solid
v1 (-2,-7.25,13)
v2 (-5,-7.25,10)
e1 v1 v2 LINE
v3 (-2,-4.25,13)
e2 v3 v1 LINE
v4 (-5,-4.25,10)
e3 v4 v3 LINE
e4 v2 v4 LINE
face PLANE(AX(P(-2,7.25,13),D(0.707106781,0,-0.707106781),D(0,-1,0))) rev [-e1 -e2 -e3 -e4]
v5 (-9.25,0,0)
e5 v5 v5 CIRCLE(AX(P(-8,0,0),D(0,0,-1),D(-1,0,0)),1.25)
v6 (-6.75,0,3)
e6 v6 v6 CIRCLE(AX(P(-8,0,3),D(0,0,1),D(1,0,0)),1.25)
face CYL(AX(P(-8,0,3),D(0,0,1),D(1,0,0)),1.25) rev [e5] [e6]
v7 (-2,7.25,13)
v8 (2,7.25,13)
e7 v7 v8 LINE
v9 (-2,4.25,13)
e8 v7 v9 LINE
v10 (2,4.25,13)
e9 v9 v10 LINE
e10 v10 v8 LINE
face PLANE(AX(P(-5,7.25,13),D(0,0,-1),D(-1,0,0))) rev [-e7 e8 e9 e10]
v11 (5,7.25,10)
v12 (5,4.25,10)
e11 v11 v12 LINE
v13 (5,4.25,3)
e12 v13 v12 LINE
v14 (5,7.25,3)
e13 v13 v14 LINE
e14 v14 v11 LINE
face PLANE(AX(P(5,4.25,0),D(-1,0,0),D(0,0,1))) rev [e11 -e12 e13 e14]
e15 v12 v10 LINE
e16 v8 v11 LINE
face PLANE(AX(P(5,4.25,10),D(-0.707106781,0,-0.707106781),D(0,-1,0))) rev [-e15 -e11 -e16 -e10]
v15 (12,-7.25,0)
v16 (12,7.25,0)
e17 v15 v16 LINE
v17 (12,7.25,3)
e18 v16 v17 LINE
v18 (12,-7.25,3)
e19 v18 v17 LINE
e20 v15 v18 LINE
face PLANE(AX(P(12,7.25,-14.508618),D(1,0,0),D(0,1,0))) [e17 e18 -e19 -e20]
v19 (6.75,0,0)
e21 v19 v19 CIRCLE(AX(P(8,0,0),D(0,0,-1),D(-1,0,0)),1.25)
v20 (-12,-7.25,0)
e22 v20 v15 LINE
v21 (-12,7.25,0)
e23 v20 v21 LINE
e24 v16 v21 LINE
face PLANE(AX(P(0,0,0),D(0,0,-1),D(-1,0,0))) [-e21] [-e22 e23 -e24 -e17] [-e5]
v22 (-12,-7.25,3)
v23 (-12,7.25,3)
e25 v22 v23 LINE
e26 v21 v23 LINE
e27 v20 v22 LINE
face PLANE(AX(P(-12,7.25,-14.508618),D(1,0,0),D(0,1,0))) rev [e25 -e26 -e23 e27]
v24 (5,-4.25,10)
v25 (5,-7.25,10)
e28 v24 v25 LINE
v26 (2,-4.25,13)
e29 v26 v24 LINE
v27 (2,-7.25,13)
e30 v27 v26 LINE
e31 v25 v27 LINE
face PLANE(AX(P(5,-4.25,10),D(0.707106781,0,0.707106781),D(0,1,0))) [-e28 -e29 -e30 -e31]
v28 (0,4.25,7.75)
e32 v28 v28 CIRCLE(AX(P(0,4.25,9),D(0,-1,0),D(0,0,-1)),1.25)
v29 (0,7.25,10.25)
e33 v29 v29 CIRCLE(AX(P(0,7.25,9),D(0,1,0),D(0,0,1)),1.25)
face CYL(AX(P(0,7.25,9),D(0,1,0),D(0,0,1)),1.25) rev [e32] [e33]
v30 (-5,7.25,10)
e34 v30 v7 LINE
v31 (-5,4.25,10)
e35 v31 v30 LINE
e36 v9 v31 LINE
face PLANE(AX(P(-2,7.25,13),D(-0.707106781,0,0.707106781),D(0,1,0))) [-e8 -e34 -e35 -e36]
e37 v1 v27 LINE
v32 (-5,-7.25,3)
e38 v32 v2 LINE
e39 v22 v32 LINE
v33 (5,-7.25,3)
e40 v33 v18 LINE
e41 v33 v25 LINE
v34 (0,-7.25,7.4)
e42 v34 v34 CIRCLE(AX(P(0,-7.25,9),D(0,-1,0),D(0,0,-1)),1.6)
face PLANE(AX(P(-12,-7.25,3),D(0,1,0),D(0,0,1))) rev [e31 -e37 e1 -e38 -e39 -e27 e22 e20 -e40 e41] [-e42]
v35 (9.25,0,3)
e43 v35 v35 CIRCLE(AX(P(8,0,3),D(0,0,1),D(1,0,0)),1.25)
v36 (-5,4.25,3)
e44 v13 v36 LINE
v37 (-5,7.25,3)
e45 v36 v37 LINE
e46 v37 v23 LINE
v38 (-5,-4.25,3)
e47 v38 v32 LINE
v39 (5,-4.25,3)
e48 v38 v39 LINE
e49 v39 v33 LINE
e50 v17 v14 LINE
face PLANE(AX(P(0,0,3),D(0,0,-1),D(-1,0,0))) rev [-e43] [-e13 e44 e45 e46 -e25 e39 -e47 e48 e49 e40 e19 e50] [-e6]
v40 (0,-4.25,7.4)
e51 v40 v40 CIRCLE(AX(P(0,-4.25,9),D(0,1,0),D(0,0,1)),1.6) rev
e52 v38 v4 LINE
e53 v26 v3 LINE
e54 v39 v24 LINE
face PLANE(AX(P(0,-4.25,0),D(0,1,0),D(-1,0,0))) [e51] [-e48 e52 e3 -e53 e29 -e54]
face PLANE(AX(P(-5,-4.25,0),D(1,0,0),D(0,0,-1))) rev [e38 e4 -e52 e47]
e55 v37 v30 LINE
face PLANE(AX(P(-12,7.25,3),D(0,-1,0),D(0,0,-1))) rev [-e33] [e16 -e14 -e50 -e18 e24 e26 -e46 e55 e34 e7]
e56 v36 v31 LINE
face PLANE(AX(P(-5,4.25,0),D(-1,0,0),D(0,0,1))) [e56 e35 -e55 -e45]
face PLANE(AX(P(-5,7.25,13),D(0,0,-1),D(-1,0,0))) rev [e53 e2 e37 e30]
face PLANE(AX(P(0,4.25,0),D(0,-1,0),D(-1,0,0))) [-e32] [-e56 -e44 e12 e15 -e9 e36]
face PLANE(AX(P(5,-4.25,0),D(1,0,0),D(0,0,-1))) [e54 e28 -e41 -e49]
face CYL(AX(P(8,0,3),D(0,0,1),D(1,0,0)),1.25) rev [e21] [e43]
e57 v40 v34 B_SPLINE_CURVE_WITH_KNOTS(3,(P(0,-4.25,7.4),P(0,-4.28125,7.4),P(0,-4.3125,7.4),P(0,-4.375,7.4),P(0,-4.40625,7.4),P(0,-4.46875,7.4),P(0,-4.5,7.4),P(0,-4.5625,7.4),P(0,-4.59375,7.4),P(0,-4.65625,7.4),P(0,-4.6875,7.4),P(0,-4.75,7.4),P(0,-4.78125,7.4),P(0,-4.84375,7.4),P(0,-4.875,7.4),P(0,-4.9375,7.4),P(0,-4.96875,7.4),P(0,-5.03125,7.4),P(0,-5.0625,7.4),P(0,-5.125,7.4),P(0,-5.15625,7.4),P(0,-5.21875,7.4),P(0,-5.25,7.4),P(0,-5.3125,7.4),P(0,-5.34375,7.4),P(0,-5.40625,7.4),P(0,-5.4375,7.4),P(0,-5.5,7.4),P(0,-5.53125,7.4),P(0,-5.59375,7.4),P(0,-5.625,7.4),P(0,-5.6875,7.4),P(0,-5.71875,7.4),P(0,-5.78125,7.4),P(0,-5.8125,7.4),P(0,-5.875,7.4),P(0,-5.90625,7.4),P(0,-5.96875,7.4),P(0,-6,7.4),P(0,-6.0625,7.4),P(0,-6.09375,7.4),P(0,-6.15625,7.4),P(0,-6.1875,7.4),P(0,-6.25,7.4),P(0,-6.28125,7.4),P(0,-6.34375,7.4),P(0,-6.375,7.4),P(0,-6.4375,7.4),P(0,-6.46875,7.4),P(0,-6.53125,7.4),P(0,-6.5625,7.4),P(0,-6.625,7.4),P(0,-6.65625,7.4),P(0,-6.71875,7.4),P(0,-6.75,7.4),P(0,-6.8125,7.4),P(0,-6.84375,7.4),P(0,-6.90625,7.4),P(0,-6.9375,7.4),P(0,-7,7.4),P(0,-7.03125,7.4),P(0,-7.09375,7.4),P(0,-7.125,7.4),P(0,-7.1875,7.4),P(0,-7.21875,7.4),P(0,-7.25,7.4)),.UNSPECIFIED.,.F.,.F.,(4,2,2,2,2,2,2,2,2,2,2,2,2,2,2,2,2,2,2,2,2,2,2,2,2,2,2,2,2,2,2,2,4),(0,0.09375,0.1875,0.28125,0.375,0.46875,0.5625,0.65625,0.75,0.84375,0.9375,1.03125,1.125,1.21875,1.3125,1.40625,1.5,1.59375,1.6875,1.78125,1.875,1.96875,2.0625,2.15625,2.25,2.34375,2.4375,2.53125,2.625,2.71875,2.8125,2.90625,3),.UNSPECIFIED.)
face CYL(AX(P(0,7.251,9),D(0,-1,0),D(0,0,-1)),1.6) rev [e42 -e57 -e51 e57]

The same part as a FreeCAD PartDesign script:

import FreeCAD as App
import Part
import Sketcher
from FreeCAD import Vector
Q = App.Units.Quantity


def edges_at(feature, points):
    """Names of the edges that pass closest to the given points."""
    edges = feature.Shape.Edges
    near = lambda p: min(range(len(edges)), key=lambda i: edges[i].distToShape(Part.Vertex(*p))[0])
    return sorted({f"Edge{near(p) + 1}" for p in points})

doc = App.newDocument("Part")
body = doc.addObject("PartDesign::Body", "Body")

# Sketch on XY plane
sketch1 = body.newObject("Sketcher::SketchObject", "Sketch")
sketch1.AttachmentSupport = (doc.getObject("XY_Plane"), [""])
sketch1.MapMode = "FlatFace"
sketch1.addGeometry(Part.LineSegment(Vector(-12, 7, 0), Vector(-12, -7, 0)), False)
sketch1.addGeometry(Part.LineSegment(Vector(-12, -7, 0), Vector(12, -7, 0)), False)
sketch1.addGeometry(Part.LineSegment(Vector(12, -7, 0), Vector(12, 7, 0)), False)
sketch1.addGeometry(Part.LineSegment(Vector(12, 7, 0), Vector(-12, 7, 0)), False)
sketch1.addConstraint(Sketcher.Constraint("Coincident", 0, 2, 1, 1))
sketch1.addConstraint(Sketcher.Constraint("Coincident", 1, 2, 2, 1))
sketch1.addConstraint(Sketcher.Constraint("Coincident", 2, 2, 3, 1))
sketch1.addConstraint(Sketcher.Constraint("Coincident", 3, 2, 0, 1))
sketch1.addConstraint(Sketcher.Constraint("Vertical", 0))
sketch1.addConstraint(Sketcher.Constraint("Horizontal", 1))
sketch1.addConstraint(Sketcher.Constraint("Vertical", 2))
sketch1.addConstraint(Sketcher.Constraint("Horizontal", 3))
sketch1.addConstraint(Sketcher.Constraint("Symmetric", 0, 2, 2, 2, -1, 1))
sketch1.addConstraint(Sketcher.Constraint("DistanceX", 1, 1, 1, 2, Q("24 mm")))
sketch1.addConstraint(Sketcher.Constraint("DistanceY", 0, 2, 0, 1, Q("14.5 mm")))
pad1 = body.newObject("PartDesign::Pad", "Pad")
pad1.Profile = sketch1
pad1.Length = 3

# Sketch on XZ plane
sketch2 = body.newObject("Sketcher::SketchObject", "Sketch001")
sketch2.AttachmentSupport = (doc.getObject("XZ_Plane"), [""])
sketch2.MapMode = "FlatFace"
sketch2.AttachmentOffset = App.Placement(Vector(0, 0, 7.25), App.Rotation())
sketch2.addGeometry(Part.LineSegment(Vector(-5, 14, 0), Vector(-5, 0, 0)), False)
sketch2.addGeometry(Part.LineSegment(Vector(-5, 0, 0), Vector(5, 0, 0)), False)
sketch2.addGeometry(Part.LineSegment(Vector(5, 0, 0), Vector(5, 14, 0)), False)
sketch2.addGeometry(Part.LineSegment(Vector(5, 14, 0), Vector(-5, 14, 0)), False)
sketch2.addConstraint(Sketcher.Constraint("Coincident", 0, 2, 1, 1))
sketch2.addConstraint(Sketcher.Constraint("Coincident", 1, 2, 2, 1))
sketch2.addConstraint(Sketcher.Constraint("Coincident", 2, 2, 3, 1))
sketch2.addConstraint(Sketcher.Constraint("Coincident", 3, 2, 0, 1))
sketch2.addConstraint(Sketcher.Constraint("Vertical", 0))
sketch2.addConstraint(Sketcher.Constraint("Horizontal", 1))
sketch2.addConstraint(Sketcher.Constraint("Vertical", 2))
sketch2.addConstraint(Sketcher.Constraint("Horizontal", 3))
sketch2.addConstraint(Sketcher.Constraint("Symmetric", 0, 2, 1, 2, -1, 1))
sketch2.addConstraint(Sketcher.Constraint("DistanceX", 1, 1, 1, 2, Q("10 mm")))
sketch2.addConstraint(Sketcher.Constraint("DistanceY", 0, 2, 0, 1, Q("14 mm")))
pad2 = body.newObject("PartDesign::Pad", "Pad001")
pad2.Profile = sketch2
pad2.Length = 3
pad2.Reversed = True
doc.recompute()

mirrored = body.newObject("PartDesign::Mirrored", "Mirrored")
mirrored.Originals = [pad2]
mirrored.MirrorPlane = (doc.getObject("XZ_Plane"), [""])
body.Tip = mirrored

# Sketch on XZ plane
sketch3 = body.newObject("Sketcher::SketchObject", "Sketch002")
sketch3.AttachmentSupport = (doc.getObject("XZ_Plane"), [""])
sketch3.MapMode = "FlatFace"
sketch3.AttachmentOffset = App.Placement(Vector(0, 0, 7.25), App.Rotation())
sketch3.addGeometry(Part.Circle(Vector(0, 9, 0), Vector(0, 0, 1), 1.6), False)
sketch3.addConstraint(Sketcher.Constraint("PointOnObject", 0, 3, -2))
sketch3.addConstraint(Sketcher.Constraint("Diameter", 0, Q("3.2 mm")))
sketch3.addConstraint(Sketcher.Constraint("DistanceY", -1, 1, 0, 3, Q("9 mm")))
pocket1 = body.newObject("PartDesign::Pocket", "Pocket")
pocket1.Profile = sketch3
pocket1.Type = "UpToFirst"

# Sketch on XZ plane
sketch4 = body.newObject("Sketcher::SketchObject", "Sketch003")
sketch4.AttachmentSupport = (doc.getObject("XZ_Plane"), [""])
sketch4.MapMode = "FlatFace"
sketch4.AttachmentOffset = App.Placement(Vector(0, 0, -7.25), App.Rotation())
sketch4.addGeometry(Part.Circle(Vector(0, 9, 0), Vector(0, 0, 1), 1.2), False)
sketch4.addConstraint(Sketcher.Constraint("PointOnObject", 0, 3, -2))
sketch4.addConstraint(Sketcher.Constraint("Diameter", 0, Q("2.5 mm")))
sketch4.addConstraint(Sketcher.Constraint("DistanceY", -1, 1, 0, 3, Q("9 mm")))
doc.recompute()
hole = body.newObject("PartDesign::Hole", "Hole")
hole.Profile = sketch4
hole.ThreadType = "None"
hole.Diameter = 2.5
hole.DepthType = "ThroughAll"
hole.Reversed = True

# Sketch on XY plane
sketch5 = body.newObject("Sketcher::SketchObject", "Sketch004")
sketch5.AttachmentSupport = (doc.getObject("XY_Plane"), [""])
sketch5.MapMode = "FlatFace"
sketch5.AttachmentOffset = App.Placement(Vector(0, 0, 3), App.Rotation())
sketch5.addGeometry(Part.Circle(Vector(-8, 0, 0), Vector(0, 0, 1), 1.2), False)
sketch5.addGeometry(Part.Circle(Vector(8, 0, 0), Vector(0, 0, 1), 1.2), False)
sketch5.addConstraint(Sketcher.Constraint("Equal", 0, 1))
sketch5.addConstraint(Sketcher.Constraint("Symmetric", 0, 3, 1, 3, -1, 1))
sketch5.addConstraint(Sketcher.Constraint("PointOnObject", 0, 3, -1))
sketch5.addConstraint(Sketcher.Constraint("Diameter", 0, Q("2.5 mm")))
sketch5.addConstraint(Sketcher.Constraint("DistanceX", 0, 3, -1, 1, Q("8 mm")))
doc.recompute()
hole2 = body.newObject("PartDesign::Hole", "Hole001")
hole2.Profile = sketch5
hole2.ThreadType = "None"
hole2.Diameter = 2.5
hole2.DepthType = "ThroughAll"

# Sketch on XY plane
sketch6 = body.newObject("Sketcher::SketchObject", "Sketch005")
sketch6.AttachmentSupport = (doc.getObject("XY_Plane"), [""])
sketch6.MapMode = "FlatFace"
sketch6.addGeometry(Part.LineSegment(Vector(12, 7.2, 0), Vector(12, -7.2, 0)), False)
sketch6.addGeometry(Part.LineSegment(Vector(12, -7.2, 0), Vector(11.5, -7.2, 0)), False)
sketch6.addGeometry(Part.LineSegment(Vector(11.5, -7.2, 0), Vector(11.5, 7.2, 0)), False)
sketch6.addGeometry(Part.LineSegment(Vector(11.5, 7.2, 0), Vector(12, 7.2, 0)), False)
sketch6.addGeometry(Part.LineSegment(Vector(-11.5, 7.2, 0), Vector(-11.5, -7.2, 0)), False)
sketch6.addGeometry(Part.LineSegment(Vector(-11.5, -7.2, 0), Vector(-12, -7.2, 0)), False)
sketch6.addGeometry(Part.LineSegment(Vector(-12, -7.2, 0), Vector(-12, 7.2, 0)), False)
sketch6.addGeometry(Part.LineSegment(Vector(-12, 7.2, 0), Vector(-11.5, 7.2, 0)), False)
sketch6.addConstraint(Sketcher.Constraint("Coincident", 0, 2, 1, 1))
sketch6.addConstraint(Sketcher.Constraint("Coincident", 1, 2, 2, 1))
sketch6.addConstraint(Sketcher.Constraint("Coincident", 2, 2, 3, 1))
sketch6.addConstraint(Sketcher.Constraint("Coincident", 3, 2, 0, 1))
sketch6.addConstraint(Sketcher.Constraint("Coincident", 4, 2, 5, 1))
sketch6.addConstraint(Sketcher.Constraint("Coincident", 5, 2, 6, 1))
sketch6.addConstraint(Sketcher.Constraint("Coincident", 6, 2, 7, 1))
sketch6.addConstraint(Sketcher.Constraint("Coincident", 7, 2, 4, 1))
sketch6.addConstraint(Sketcher.Constraint("Vertical", 0))
sketch6.addConstraint(Sketcher.Constraint("Horizontal", 1))
sketch6.addConstraint(Sketcher.Constraint("Vertical", 2))
sketch6.addConstraint(Sketcher.Constraint("Horizontal", 3))
sketch6.addConstraint(Sketcher.Constraint("Vertical", 4))
sketch6.addConstraint(Sketcher.Constraint("Horizontal", 5))
sketch6.addConstraint(Sketcher.Constraint("Vertical", 6))
sketch6.addConstraint(Sketcher.Constraint("Horizontal", 7))
sketch6.addConstraint(Sketcher.Constraint("Symmetric", 2, 2, 4, 2, -1, 1))
sketch6.addConstraint(Sketcher.Constraint("Symmetric", 0, 2, 6, 2, -1, 1))
sketch6.addConstraint(Sketcher.Constraint("Horizontal", 1, 2, 4, 2))
sketch6.addConstraint(Sketcher.Constraint("DistanceX", 1, 2, 1, 1, Q("0.5 mm")))
sketch6.addConstraint(Sketcher.Constraint("DistanceY", 0, 2, 0, 1, Q("14.5 mm")))
sketch6.addConstraint(Sketcher.Constraint("DistanceX", -1, 1, 0, 2, Q("12 mm")))
pocket2 = body.newObject("PartDesign::Pocket", "Pocket001")
pocket2.Profile = sketch6
pocket2.Type = "ThroughAll"
pocket2.Reversed = True

# Sketch on XZ plane
sketch7 = body.newObject("Sketcher::SketchObject", "Sketch006")
sketch7.AttachmentSupport = (doc.getObject("XZ_Plane"), [""])
sketch7.MapMode = "FlatFace"
sketch7.AttachmentOffset = App.Placement(Vector(0, 0, 7.25), App.Rotation())
sketch7.addGeometry(Part.LineSegment(Vector(-5, 14, 0), Vector(-5, 13, 0)), False)
sketch7.addGeometry(Part.LineSegment(Vector(-5, 13, 0), Vector(5, 13, 0)), False)
sketch7.addGeometry(Part.LineSegment(Vector(5, 13, 0), Vector(5, 14, 0)), False)
sketch7.addGeometry(Part.LineSegment(Vector(5, 14, 0), Vector(-5, 14, 0)), False)
sketch7.addConstraint(Sketcher.Constraint("Coincident", 0, 2, 1, 1))
sketch7.addConstraint(Sketcher.Constraint("Coincident", 1, 2, 2, 1))
sketch7.addConstraint(Sketcher.Constraint("Coincident", 2, 2, 3, 1))
sketch7.addConstraint(Sketcher.Constraint("Coincident", 3, 2, 0, 1))
sketch7.addConstraint(Sketcher.Constraint("Vertical", 0))
sketch7.addConstraint(Sketcher.Constraint("Horizontal", 1))
sketch7.addConstraint(Sketcher.Constraint("Vertical", 2))
sketch7.addConstraint(Sketcher.Constraint("Horizontal", 3))
sketch7.addConstraint(Sketcher.Constraint("DistanceX", 1, 1, 1, 2, Q("10 mm")))
sketch7.addConstraint(Sketcher.Constraint("DistanceY", 0, 2, 0, 1, Q("1 mm")))
sketch7.addConstraint(Sketcher.Constraint("DistanceX", 0, 2, -1, 1, Q("5 mm")))
sketch7.addConstraint(Sketcher.Constraint("DistanceY", -1, 1, 0, 2, Q("13 mm")))
pocket3 = body.newObject("PartDesign::Pocket", "Pocket002")
pocket3.Profile = sketch7
pocket3.Type = "ThroughAll"
doc.recompute()

chamfer = body.newObject("PartDesign::Chamfer", "Chamfer")
chamfer.Base = (pocket3, edges_at(pocket3, [
    (5, -5.75, 13),
    (-5, -5.75, 13),
    (-5, 5.75, 13),
    (5, 5.75, 13),
]))
chamfer.Size = 3

# Sketch on XY plane
sketch8 = body.newObject("Sketcher::SketchObject", "Sketch007")
sketch8.AttachmentSupport = (doc.getObject("XY_Plane"), [""])
sketch8.MapMode = "FlatFace"
sketch8.AttachmentOffset = App.Placement(Vector(0, 0, 3), App.Rotation())
sketch8.addGeometry(Part.LineSegment(Vector(11.5, 7.2, 0), Vector(11.5, -7.2, 0)), False)
sketch8.addGeometry(Part.LineSegment(Vector(11.5, -7.2, 0), Vector(12, -7.2, 0)), False)
sketch8.addGeometry(Part.LineSegment(Vector(12, -7.2, 0), Vector(12, 7.2, 0)), False)
sketch8.addGeometry(Part.LineSegment(Vector(12, 7.2, 0), Vector(11.5, 7.2, 0)), False)
sketch8.addConstraint(Sketcher.Constraint("Coincident", 0, 2, 1, 1))
sketch8.addConstraint(Sketcher.Constraint("Coincident", 1, 2, 2, 1))
sketch8.addConstraint(Sketcher.Constraint("Coincident", 2, 2, 3, 1))
sketch8.addConstraint(Sketcher.Constraint("Coincident", 3, 2, 0, 1))
sketch8.addConstraint(Sketcher.Constraint("Vertical", 0))
sketch8.addConstraint(Sketcher.Constraint("Horizontal", 1))
sketch8.addConstraint(Sketcher.Constraint("Vertical", 2))
sketch8.addConstraint(Sketcher.Constraint("Horizontal", 3))
sketch8.addConstraint(Sketcher.Constraint("DistanceX", 1, 1, 1, 2, Q("0.5 mm")))
sketch8.addConstraint(Sketcher.Constraint("DistanceY", 0, 2, 0, 1, Q("14.5 mm")))
sketch8.addConstraint(Sketcher.Constraint("DistanceX", -1, 1, 1, 2, Q("12 mm")))
sketch8.addConstraint(Sketcher.Constraint("DistanceY", 0, 2, -1, 1, Q("7.25 mm")))
pad3 = body.newObject("PartDesign::Pad", "Pad002")
pad3.Profile = sketch8
pad3.Length = 3
pad3.Reversed = True
doc.recompute()

mirrored2 = body.newObject("PartDesign::Mirrored", "Mirrored001")
mirrored2.Originals = [pad3]
mirrored2.MirrorPlane = (doc.getObject("YZ_Plane"), [""])
body.Tip = mirrored2

doc.recompute()
